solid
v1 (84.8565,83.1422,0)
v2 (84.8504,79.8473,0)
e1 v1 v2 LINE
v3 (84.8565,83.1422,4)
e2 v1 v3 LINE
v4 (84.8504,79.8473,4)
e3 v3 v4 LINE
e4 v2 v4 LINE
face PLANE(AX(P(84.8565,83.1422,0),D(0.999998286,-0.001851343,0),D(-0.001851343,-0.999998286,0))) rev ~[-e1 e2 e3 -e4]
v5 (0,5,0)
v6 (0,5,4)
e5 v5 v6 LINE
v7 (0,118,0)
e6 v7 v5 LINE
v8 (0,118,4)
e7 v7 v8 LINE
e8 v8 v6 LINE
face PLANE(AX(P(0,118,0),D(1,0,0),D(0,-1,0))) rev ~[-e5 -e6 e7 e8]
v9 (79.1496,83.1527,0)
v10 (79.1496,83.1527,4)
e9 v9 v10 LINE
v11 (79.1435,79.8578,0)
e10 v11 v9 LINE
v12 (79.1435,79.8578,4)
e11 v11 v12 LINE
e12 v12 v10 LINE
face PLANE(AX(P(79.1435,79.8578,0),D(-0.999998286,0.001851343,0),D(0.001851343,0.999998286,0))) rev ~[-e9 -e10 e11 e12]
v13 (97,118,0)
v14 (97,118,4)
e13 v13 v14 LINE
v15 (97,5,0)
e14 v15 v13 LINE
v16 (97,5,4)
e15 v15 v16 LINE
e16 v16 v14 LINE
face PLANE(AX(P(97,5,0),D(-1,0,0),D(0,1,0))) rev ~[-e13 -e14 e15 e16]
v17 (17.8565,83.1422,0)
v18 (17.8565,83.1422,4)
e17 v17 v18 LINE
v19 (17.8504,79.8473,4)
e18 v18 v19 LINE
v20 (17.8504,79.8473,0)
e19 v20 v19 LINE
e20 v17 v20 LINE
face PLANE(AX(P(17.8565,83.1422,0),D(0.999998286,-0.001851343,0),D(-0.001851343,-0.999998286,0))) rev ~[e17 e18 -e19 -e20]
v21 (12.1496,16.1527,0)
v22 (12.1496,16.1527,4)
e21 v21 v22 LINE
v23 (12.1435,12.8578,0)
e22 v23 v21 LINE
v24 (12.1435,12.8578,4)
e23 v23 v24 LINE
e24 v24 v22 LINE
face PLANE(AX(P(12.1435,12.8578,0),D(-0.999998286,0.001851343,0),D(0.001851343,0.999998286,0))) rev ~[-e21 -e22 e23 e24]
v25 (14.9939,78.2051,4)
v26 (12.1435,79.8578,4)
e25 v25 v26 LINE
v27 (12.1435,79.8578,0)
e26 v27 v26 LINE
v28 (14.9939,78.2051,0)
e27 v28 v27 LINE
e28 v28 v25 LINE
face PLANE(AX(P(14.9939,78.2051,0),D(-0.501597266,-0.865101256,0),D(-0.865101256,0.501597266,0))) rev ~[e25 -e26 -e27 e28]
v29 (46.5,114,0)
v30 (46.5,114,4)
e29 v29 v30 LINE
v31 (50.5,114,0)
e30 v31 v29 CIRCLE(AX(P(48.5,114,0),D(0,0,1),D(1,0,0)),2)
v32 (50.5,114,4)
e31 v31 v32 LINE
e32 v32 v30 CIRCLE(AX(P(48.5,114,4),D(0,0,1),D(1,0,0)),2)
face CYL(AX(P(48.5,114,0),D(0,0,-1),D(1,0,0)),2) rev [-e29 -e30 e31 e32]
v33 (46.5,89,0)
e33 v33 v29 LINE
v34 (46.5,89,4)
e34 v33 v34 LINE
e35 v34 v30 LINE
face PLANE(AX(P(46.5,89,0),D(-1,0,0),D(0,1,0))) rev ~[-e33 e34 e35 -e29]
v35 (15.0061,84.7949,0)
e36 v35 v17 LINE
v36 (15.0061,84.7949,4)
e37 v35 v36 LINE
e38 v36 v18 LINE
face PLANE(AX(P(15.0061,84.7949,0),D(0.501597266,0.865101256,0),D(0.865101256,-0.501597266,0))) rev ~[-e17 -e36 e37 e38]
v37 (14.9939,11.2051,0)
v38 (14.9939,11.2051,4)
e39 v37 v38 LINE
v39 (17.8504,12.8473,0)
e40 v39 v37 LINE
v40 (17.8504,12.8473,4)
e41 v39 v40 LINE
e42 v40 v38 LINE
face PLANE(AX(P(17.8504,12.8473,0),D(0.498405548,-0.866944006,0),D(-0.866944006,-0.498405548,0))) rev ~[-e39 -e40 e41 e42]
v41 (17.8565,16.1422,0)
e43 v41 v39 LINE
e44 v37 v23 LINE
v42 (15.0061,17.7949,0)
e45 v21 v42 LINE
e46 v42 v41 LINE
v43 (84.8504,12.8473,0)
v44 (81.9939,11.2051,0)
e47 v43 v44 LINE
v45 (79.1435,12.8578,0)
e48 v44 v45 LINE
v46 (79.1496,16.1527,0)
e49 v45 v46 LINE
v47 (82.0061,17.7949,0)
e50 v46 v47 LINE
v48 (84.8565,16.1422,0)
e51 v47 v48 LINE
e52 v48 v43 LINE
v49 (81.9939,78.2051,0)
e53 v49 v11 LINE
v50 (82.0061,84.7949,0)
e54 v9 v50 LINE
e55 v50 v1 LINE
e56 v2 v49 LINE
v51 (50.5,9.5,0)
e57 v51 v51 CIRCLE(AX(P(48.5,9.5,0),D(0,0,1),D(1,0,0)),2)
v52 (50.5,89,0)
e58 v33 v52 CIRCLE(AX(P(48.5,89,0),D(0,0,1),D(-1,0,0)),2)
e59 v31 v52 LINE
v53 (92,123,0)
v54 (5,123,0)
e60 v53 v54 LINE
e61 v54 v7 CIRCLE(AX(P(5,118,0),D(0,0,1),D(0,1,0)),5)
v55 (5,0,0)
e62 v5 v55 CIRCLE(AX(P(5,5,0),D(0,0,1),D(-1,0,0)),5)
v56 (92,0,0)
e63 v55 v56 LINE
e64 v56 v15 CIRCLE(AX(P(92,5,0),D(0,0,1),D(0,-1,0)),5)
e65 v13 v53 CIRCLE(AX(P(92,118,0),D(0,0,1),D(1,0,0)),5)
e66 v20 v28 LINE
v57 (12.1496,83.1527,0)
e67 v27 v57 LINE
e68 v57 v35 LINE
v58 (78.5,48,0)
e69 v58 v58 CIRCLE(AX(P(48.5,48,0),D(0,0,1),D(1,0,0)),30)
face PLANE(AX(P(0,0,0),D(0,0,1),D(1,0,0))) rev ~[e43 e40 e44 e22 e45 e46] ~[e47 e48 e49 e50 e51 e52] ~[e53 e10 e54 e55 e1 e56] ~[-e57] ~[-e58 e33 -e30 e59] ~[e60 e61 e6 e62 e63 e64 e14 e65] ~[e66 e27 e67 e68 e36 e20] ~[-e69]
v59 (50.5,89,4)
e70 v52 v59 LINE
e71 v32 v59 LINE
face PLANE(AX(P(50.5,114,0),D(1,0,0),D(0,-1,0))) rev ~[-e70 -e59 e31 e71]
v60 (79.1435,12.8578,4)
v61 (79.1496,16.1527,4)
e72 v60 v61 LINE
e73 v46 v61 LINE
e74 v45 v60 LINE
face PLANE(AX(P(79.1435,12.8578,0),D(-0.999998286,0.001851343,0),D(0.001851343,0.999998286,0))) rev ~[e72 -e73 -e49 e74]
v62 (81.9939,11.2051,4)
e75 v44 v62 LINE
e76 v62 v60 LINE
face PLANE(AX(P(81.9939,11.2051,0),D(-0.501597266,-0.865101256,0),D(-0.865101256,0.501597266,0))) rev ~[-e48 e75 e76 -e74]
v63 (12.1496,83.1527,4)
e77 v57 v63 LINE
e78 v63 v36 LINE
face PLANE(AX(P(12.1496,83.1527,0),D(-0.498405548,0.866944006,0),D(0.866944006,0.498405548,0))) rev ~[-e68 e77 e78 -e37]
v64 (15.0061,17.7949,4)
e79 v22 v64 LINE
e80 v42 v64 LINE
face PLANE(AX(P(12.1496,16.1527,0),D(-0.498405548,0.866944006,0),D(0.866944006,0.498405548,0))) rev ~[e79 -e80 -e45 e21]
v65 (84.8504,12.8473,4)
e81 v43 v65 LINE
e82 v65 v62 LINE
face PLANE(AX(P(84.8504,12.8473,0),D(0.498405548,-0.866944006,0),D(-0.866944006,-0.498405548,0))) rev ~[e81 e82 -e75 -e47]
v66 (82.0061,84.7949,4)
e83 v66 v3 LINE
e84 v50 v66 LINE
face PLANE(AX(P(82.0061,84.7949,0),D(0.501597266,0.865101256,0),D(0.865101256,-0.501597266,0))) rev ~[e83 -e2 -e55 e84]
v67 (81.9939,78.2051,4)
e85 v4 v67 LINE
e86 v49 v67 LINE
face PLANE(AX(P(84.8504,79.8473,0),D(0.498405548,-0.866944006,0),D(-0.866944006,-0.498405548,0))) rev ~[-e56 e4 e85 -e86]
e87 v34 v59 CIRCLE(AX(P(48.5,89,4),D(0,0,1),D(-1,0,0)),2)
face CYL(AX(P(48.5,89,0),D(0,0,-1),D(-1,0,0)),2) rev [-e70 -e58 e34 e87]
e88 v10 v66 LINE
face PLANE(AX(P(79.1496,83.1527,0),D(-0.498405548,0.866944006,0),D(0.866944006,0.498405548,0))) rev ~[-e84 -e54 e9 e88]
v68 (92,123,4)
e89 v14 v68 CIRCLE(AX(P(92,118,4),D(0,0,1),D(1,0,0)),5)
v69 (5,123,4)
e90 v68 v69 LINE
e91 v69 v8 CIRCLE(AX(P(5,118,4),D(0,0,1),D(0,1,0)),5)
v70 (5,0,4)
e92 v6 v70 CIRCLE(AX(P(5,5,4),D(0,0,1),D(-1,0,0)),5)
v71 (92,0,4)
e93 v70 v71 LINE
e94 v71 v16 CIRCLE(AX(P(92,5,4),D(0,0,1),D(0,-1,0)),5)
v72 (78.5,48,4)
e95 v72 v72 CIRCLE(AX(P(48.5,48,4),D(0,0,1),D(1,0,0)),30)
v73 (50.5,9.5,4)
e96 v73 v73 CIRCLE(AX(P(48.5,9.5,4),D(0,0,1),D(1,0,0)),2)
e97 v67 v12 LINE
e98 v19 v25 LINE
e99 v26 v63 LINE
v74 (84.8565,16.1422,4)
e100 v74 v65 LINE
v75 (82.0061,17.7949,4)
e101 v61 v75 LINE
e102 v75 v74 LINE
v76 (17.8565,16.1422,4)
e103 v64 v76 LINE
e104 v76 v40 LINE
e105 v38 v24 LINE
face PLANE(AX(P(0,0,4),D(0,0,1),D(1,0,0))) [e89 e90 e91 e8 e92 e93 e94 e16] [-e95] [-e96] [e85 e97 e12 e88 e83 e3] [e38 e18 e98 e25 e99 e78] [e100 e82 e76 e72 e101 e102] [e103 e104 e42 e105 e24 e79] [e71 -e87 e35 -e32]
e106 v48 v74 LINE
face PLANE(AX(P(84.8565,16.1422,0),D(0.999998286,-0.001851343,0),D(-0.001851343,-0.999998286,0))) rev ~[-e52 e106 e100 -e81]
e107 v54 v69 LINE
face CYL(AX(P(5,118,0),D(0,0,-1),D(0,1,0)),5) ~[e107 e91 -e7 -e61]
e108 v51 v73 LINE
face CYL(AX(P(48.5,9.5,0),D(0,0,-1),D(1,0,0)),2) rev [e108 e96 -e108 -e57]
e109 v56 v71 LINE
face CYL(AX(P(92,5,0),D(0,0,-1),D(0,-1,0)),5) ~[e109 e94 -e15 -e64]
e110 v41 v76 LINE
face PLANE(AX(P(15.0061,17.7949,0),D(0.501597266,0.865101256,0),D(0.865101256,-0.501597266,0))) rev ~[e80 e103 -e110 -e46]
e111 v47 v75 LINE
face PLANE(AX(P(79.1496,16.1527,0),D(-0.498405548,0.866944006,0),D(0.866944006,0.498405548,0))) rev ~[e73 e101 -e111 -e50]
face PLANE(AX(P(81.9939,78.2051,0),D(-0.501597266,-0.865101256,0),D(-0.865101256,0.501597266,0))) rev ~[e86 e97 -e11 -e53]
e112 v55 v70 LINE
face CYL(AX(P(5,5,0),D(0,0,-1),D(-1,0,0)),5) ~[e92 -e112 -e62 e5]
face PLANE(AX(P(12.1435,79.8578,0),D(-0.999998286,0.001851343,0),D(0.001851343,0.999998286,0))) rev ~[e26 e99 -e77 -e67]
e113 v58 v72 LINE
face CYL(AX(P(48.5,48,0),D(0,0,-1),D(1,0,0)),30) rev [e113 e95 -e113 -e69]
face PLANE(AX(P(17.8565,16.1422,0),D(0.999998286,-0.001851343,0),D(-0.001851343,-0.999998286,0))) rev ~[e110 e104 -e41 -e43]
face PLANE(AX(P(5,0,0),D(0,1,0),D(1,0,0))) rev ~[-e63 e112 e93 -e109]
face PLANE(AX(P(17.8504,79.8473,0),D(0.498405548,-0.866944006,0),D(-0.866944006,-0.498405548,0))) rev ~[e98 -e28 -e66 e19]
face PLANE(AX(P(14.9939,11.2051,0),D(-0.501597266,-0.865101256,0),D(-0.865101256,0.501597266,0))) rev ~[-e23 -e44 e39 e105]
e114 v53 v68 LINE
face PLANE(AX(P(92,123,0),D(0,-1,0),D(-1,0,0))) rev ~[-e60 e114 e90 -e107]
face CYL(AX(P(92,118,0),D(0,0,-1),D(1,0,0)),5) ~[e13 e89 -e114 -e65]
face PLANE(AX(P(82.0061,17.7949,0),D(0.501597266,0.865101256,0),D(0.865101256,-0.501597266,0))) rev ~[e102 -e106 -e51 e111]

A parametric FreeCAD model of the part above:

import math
import FreeCAD as App
import Part
import Sketcher

V = App.Vector


def add_polygon(sketch, points):
    """Adds a closed chain of lines whose ends are joined by coincident constraints."""
    first, n = sketch.GeometryCount, len(points)
    for a, b in zip(points, points[1:] + points[:1]):
        sketch.addGeometry(Part.LineSegment(App.Vector(*a, 0), App.Vector(*b, 0)), False)
    for i in range(n):
        sketch.addConstraint(Sketcher.Constraint("Coincident", first + i, 2, first + (i + 1) % n, 1))

doc = App.newDocument("Part")
body = doc.addObject("PartDesign::Body", "Body")

sketch1 = body.newObject("Sketcher::SketchObject", "Sketch")
sketch1.AttachmentSupport = (doc.getObject("XY_Plane"), [""])
sketch1.MapMode = "FlatFace"
sketch1.addGeometry(Part.ArcOfCircle(Part.Circle(V(5, 5, 0), V(0, 0, 1), 5), math.radians(180), math.radians(270)), False)
sketch1.addGeometry(Part.LineSegment(V(5, 0, 0), V(92, 0, 0)), False)
sketch1.addGeometry(Part.ArcOfCircle(Part.Circle(V(92, 5, 0), V(0, 0, 1), 5), math.radians(-90), math.radians(0)), False)
sketch1.addGeometry(Part.LineSegment(V(97, 5, 0), V(97, 118, 0)), False)
sketch1.addGeometry(Part.ArcOfCircle(Part.Circle(V(92, 118, 0), V(0, 0, 1), 5), math.radians(0), math.radians(90)), False)
sketch1.addGeometry(Part.LineSegment(V(92, 123, 0), V(5, 123, 0)), False)
sketch1.addGeometry(Part.ArcOfCircle(Part.Circle(V(5, 118, 0), V(0, 0, 1), 5), math.radians(90), math.radians(180)), False)
sketch1.addGeometry(Part.LineSegment(V(0, 118, 0), V(0, 5, 0)), False)
add_polygon(sketch1, [(15, 11.2), (12.1, 12.9), (12.1, 16.2), (15, 17.8), (17.9, 16.1), (17.9, 12.8)])
sketch1.addGeometry(Part.Circle(V(48.5, 9.5, 0), V(0, 0, 1), 2), False)
add_polygon(sketch1, [(82, 11.2), (79.1, 12.9), (79.1, 16.2), (82, 17.8), (84.9, 16.1), (84.9, 12.8)])
sketch1.addGeometry(Part.Circle(V(48.5, 48, 0), V(0, 0, 1), 30), False)
add_polygon(sketch1, [(15, 78.2), (12.1, 79.9), (12.1, 83.2), (15, 84.8), (17.9, 83.1), (17.9, 79.8)])
add_polygon(sketch1, [(82, 78.2), (79.1, 79.9), (79.1, 83.2), (82, 84.8), (84.9, 83.1), (84.9, 79.8)])
sketch1.addGeometry(Part.ArcOfCircle(Part.Circle(V(48.5, 89, 0), V(0, 0, 1), 2), math.radians(180), math.radians(360)), False)
sketch1.addGeometry(Part.LineSegment(V(46.5, 89, 0), V(46.5, 114, 0)), False)
sketch1.addGeometry(Part.ArcOfCircle(Part.Circle(V(48.5, 114, 0), V(0, 0, 1), 2), math.radians(0), math.radians(180)), False)
sketch1.addGeometry(Part.LineSegment(V(50.5, 114, 0), V(50.5, 89, 0)), False)
sketch1.addConstraint([
    Sketcher.Constraint("Tangent", 0, 2, 1, 1),
    Sketcher.Constraint("Tangent", 1, 2, 2, 1),
    Sketcher.Constraint("Tangent", 2, 2, 3, 1),
    Sketcher.Constraint("Tangent", 3, 2, 4, 1),
    Sketcher.Constraint("Tangent", 4, 2, 5, 1),
    Sketcher.Constraint("Tangent", 5, 2, 6, 1),
    Sketcher.Constraint("Tangent", 6, 2, 7, 1),
    Sketcher.Constraint("Tangent", 7, 2, 0, 1),
    Sketcher.Constraint("Tangent", 34, 1, 35, 1),
    Sketcher.Constraint("Tangent", 35, 2, 36, 2),
    Sketcher.Constraint("Tangent", 36, 1, 37, 1),
    Sketcher.Constraint("Tangent", 37, 2, 34, 2),
    Sketcher.Constraint("Horizontal", 1),
    Sketcher.Constraint("Vertical", 3),
    Sketcher.Constraint("Horizontal", 5),
    Sketcher.Constraint("Vertical", 7),
    Sketcher.Constraint("Vertical", 35),
    Sketcher.Constraint("Vertical", 37),
    Sketcher.Constraint("Equal", 0, 2),
    Sketcher.Constraint("Equal", 2, 4),
    Sketcher.Constraint("Equal", 4, 6),
    Sketcher.Constraint("Equal", 14, 34),
    Sketcher.Constraint("PointOnObject", 0, 2, -1),
    Sketcher.Constraint("PointOnObject", 6, 2, -2),
    Sketcher.Constraint("Parallel", 8, 11),
    Sketcher.Constraint("Parallel", 9, 12),
    Sketcher.Constraint("Parallel", 10, 13),
    Sketcher.Constraint("Parallel", 11, 15),
    Sketcher.Constraint("Parallel", 12, 16),
    Sketcher.Constraint("Parallel", 13, 17),
    Sketcher.Constraint("Parallel", 15, 18),
    Sketcher.Constraint("Parallel", 16, 19),
    Sketcher.Constraint("Parallel", 17, 20),
    Sketcher.Constraint("Parallel", 18, 22),
    Sketcher.Constraint("Parallel", 19, 23),
    Sketcher.Constraint("Parallel", 20, 24),
    Sketcher.Constraint("Parallel", 22, 25),
    Sketcher.Constraint("Parallel", 23, 26),
    Sketcher.Constraint("Parallel", 24, 27),
    Sketcher.Constraint("Parallel", 25, 28),
    Sketcher.Constraint("Parallel", 26, 29),
    Sketcher.Constraint("Parallel", 27, 30),
    Sketcher.Constraint("Parallel", 28, 31),
    Sketcher.Constraint("Parallel", 29, 32),
    Sketcher.Constraint("Parallel", 30, 33),
    Sketcher.Constraint("Horizontal", 8, 2, 15, 2),
    Sketcher.Constraint("Horizontal", 9, 2, 16, 2),
    Sketcher.Constraint("Horizontal", 10, 2, 17, 2),
    Sketcher.Constraint("Horizontal", 11, 2, 18, 2),
    Sketcher.Constraint("Horizontal", 12, 2, 19, 2),
    Sketcher.Constraint("Horizontal", 22, 2, 28, 2),
    Sketcher.Constraint("Horizontal", 23, 2, 29, 2),
    Sketcher.Constraint("Horizontal", 24, 2, 30, 2),
    Sketcher.Constraint("Horizontal", 25, 2, 31, 2),
    Sketcher.Constraint("Horizontal", 26, 2, 32, 2),
    Sketcher.Constraint("Vertical", 14, 3, 21, 3),
    Sketcher.Constraint("Vertical", 21, 3, 34, 3),
    Sketcher.Constraint("Vertical", 8, 2, 22, 2),
    Sketcher.Constraint("Vertical", 10, 2, 24, 2),
    Sketcher.Constraint("Vertical", 11, 2, 25, 2),
    Sketcher.Constraint("Vertical", 13, 2, 27, 2),
    Sketcher.Constraint("Vertical", 15, 2, 28, 2),
    Sketcher.Constraint("Equal", 8, 9),
    Sketcher.Constraint("Equal", 9, 10),
    Sketcher.Constraint("Equal", 10, 11),
    Sketcher.Constraint("Equal", 22, 23),
    Sketcher.Constraint("Diameter", 14, 4.0),
    Sketcher.Constraint("Radius", 0, 5.0),
    Sketcher.Constraint("Diameter", 21, 60.0),
    Sketcher.Constraint("DistanceY", 36, 3, 4, 3, 4.0),
    Sketcher.Constraint("DistanceX", 1, 1, 1, 2, 87.0),
    Sketcher.Constraint("DistanceY", 3, 1, 3, 2, 113.0),
    Sketcher.Constraint("DistanceY", 35, 1, 35, 2, 25.0),
    Sketcher.Constraint("DistanceY", -1, 1, 21, 3, 48.0),
    Sketcher.Constraint("DistanceX", -1, 1, 14, 3, 48.5),
    Sketcher.Constraint("DistanceY", -1, 1, 14, 3, 9.5),
    Sketcher.Constraint("Distance", 9, 3.295),
    Sketcher.Constraint("DistanceX", -1, 1, 10, 2, 15.006),
    Sketcher.Constraint("DistanceY", -1, 1, 10, 2, 17.795),
    Sketcher.Constraint("DistanceX", -1, 1, 13, 2, 14.994),
    Sketcher.Constraint("DistanceY", -1, 1, 13, 2, 11.205),
    Sketcher.Constraint("DistanceX", -1, 1, 17, 2, 82.006),
    Sketcher.Constraint("DistanceY", -1, 1, 24, 2, 84.795),
    Sketcher.Constraint("DistanceX", 8, 2, 9, 2, 0.006),
])
pad1 = body.newObject("PartDesign::Pad", "Pad")
pad1.Profile = sketch1
pad1.Length = 4

doc.recompute()
